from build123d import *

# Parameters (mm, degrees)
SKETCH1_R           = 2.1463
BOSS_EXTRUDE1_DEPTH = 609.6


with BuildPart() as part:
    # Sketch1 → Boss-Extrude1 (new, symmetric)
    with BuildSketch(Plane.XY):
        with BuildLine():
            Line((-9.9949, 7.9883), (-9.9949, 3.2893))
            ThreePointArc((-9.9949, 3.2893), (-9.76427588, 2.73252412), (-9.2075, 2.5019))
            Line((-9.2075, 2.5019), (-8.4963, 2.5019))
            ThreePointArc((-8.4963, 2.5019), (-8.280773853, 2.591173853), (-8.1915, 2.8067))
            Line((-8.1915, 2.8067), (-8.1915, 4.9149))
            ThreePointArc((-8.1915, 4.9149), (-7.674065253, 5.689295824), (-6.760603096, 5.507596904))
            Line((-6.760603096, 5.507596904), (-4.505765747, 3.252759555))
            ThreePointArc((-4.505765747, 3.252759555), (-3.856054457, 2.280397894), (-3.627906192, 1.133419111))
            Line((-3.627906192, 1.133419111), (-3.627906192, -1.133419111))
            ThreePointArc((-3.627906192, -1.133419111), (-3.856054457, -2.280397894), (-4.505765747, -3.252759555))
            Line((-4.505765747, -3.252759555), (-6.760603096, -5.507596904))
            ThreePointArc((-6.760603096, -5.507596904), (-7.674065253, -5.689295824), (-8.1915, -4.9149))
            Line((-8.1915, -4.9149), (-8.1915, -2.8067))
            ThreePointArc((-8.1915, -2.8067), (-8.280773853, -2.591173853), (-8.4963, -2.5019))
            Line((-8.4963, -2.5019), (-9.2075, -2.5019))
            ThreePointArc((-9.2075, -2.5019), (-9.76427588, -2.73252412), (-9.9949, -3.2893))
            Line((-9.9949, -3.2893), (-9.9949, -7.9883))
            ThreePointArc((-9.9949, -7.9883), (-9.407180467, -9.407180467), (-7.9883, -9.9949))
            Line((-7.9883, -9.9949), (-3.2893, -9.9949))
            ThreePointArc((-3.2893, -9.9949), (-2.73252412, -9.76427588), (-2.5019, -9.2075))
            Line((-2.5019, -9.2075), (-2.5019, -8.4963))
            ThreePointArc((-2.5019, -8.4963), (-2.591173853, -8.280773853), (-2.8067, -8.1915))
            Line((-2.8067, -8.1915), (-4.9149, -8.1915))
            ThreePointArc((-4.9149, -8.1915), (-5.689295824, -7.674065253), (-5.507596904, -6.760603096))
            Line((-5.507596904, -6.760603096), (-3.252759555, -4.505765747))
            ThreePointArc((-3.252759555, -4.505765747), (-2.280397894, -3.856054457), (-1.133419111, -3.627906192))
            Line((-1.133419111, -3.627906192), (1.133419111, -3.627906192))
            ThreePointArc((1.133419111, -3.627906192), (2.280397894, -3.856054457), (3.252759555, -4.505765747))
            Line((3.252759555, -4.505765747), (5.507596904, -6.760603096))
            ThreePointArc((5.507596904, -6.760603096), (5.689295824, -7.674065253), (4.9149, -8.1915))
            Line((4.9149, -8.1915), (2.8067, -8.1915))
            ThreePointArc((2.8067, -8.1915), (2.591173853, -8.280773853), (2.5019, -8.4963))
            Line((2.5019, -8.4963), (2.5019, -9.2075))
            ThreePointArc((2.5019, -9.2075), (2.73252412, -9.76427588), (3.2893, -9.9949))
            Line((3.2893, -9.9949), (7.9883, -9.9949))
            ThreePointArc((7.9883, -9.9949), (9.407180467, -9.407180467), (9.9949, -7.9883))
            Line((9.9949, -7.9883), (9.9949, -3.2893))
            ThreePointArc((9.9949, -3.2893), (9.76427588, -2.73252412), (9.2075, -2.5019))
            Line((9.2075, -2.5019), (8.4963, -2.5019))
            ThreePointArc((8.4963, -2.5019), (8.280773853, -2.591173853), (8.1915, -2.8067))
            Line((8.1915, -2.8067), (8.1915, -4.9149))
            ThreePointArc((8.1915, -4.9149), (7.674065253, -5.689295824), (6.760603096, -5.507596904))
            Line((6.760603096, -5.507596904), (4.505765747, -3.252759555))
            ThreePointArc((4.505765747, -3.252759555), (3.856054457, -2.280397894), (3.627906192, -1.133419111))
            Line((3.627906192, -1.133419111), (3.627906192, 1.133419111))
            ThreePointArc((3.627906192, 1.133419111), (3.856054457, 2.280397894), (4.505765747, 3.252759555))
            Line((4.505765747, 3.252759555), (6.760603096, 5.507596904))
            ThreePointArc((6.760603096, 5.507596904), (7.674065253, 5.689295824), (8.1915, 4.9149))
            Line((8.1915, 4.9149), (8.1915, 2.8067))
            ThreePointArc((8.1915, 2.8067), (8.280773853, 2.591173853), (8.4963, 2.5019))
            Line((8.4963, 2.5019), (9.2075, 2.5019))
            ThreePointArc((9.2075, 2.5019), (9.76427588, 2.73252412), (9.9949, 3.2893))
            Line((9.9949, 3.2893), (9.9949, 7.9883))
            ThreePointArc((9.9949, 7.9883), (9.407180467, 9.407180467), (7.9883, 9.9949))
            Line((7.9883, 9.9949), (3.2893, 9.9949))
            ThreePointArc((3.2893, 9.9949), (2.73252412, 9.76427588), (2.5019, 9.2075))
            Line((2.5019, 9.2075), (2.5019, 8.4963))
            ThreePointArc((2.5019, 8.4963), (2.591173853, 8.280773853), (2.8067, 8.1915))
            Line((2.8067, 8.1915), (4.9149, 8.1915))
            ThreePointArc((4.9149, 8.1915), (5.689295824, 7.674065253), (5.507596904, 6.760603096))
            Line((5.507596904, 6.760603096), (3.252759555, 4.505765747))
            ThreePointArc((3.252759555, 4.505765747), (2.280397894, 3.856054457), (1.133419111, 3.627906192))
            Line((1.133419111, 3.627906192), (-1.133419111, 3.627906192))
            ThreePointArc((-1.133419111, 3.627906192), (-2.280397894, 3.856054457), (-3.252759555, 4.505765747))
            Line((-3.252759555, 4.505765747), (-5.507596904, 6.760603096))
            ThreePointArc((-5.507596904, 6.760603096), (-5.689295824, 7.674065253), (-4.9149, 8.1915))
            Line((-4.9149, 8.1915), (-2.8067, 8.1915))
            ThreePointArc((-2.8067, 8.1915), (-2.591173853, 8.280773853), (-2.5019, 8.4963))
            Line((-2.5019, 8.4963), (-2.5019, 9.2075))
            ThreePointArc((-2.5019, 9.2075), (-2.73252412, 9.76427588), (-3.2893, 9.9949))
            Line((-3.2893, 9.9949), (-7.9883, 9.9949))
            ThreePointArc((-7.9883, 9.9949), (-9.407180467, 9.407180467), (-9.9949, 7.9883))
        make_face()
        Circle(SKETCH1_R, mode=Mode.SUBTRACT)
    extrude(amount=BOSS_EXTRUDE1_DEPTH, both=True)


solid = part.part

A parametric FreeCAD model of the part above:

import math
import FreeCAD as App
import Part
import Sketcher
from FreeCAD import Vector
Q = App.Units.Quantity

doc = App.newDocument("Part")
body = doc.addObject("PartDesign::Body", "Body")

# Sketch on XY plane
sketch1 = body.newObject("Sketcher::SketchObject", "Sketch")
sketch1.AttachmentSupport = (doc.getObject("XY_Plane"), [""])
sketch1.MapMode = "FlatFace"
sketch1.addGeometry(Part.LineSegment(Vector(-9.9949, 7.9883, 0), Vector(-9.9949, 3.2893, 0)), False)
sketch1.addGeometry(Part.ArcOfCircle(Part.Circle(Vector(-9.2075, 3.2893, 0), Vector(0, 0, 1), 0.7874), math.radians(180), math.radians(270)), False)
sketch1.addGeometry(Part.LineSegment(Vector(-9.2075, 2.5019, 0), Vector(-8.4963, 2.5019, 0)), False)
sketch1.addGeometry(Part.ArcOfCircle(Part.Circle(Vector(-8.4963, 2.8067, 0), Vector(0, 0, 1), 0.3048), math.radians(-90), math.radians(0)), False)
sketch1.addGeometry(Part.LineSegment(Vector(-8.1915, 2.8067, 0), Vector(-8.1915, 4.9149, 0)), False)
sketch1.addGeometry(Part.ArcOfCircle(Part.Circle(Vector(-7.3533, 4.9149, 0), Vector(0, 0, 1), 0.8382), math.radians(45), math.radians(180)), False)
sketch1.addGeometry(Part.LineSegment(Vector(-6.760603, 5.507597, 0), Vector(-4.505766, 3.25276, 0)), False)
sketch1.addGeometry(Part.ArcOfCircle(Part.Circle(Vector(-6.625106, 1.133419, 0), Vector(0, 0, 1), 2.9972), math.radians(0), math.radians(45)), False)
sketch1.addGeometry(Part.LineSegment(Vector(-3.627906, 1.133419, 0), Vector(-3.627906, -1.133419, 0)), False)
sketch1.addGeometry(Part.ArcOfCircle(Part.Circle(Vector(-6.625106, -1.133419, 0), Vector(0, 0, 1), 2.9972), math.radians(-45), math.radians(0)), False)
sketch1.addGeometry(Part.LineSegment(Vector(-4.505766, -3.25276, 0), Vector(-6.760603, -5.507597, 0)), False)
sketch1.addGeometry(Part.ArcOfCircle(Part.Circle(Vector(-7.3533, -4.9149, 0), Vector(0, 0, 1), 0.8382), math.radians(180), math.radians(315)), False)
sketch1.addGeometry(Part.LineSegment(Vector(-8.1915, -4.9149, 0), Vector(-8.1915, -2.8067, 0)), False)
sketch1.addGeometry(Part.ArcOfCircle(Part.Circle(Vector(-8.4963, -2.8067, 0), Vector(0, 0, 1), 0.3048), math.radians(0), math.radians(90)), False)
sketch1.addGeometry(Part.LineSegment(Vector(-8.4963, -2.5019, 0), Vector(-9.2075, -2.5019, 0)), False)
sketch1.addGeometry(Part.ArcOfCircle(Part.Circle(Vector(-9.2075, -3.2893, 0), Vector(0, 0, 1), 0.7874), math.radians(90), math.radians(180)), False)
sketch1.addGeometry(Part.LineSegment(Vector(-9.9949, -3.2893, 0), Vector(-9.9949, -7.9883, 0)), False)
sketch1.addGeometry(Part.ArcOfCircle(Part.Circle(Vector(-7.9883, -7.9883, 0), Vector(0, 0, 1), 2.0066), math.radians(180), math.radians(270)), False)
sketch1.addGeometry(Part.LineSegment(Vector(-7.9883, -9.9949, 0), Vector(-3.2893, -9.9949, 0)), False)
sketch1.addGeometry(Part.ArcOfCircle(Part.Circle(Vector(-3.2893, -9.2075, 0), Vector(0, 0, 1), 0.7874), math.radians(-90), math.radians(0)), False)
sketch1.addGeometry(Part.LineSegment(Vector(-2.5019, -9.2075, 0), Vector(-2.5019, -8.4963, 0)), False)
sketch1.addGeometry(Part.ArcOfCircle(Part.Circle(Vector(-2.8067, -8.4963, 0), Vector(0, 0, 1), 0.3048), math.radians(0), math.radians(90)), False)
sketch1.addGeometry(Part.LineSegment(Vector(-2.8067, -8.1915, 0), Vector(-4.9149, -8.1915, 0)), False)
sketch1.addGeometry(Part.ArcOfCircle(Part.Circle(Vector(-4.9149, -7.3533, 0), Vector(0, 0, 1), 0.8382), math.radians(135), math.radians(270)), False)
sketch1.addGeometry(Part.LineSegment(Vector(-5.507597, -6.760603, 0), Vector(-3.25276, -4.505766, 0)), False)
sketch1.addGeometry(Part.ArcOfCircle(Part.Circle(Vector(-1.133419, -6.625106, 0), Vector(0, 0, 1), 2.9972), math.radians(90), math.radians(135)), False)
sketch1.addGeometry(Part.LineSegment(Vector(-1.133419, -3.627906, 0), Vector(1.133419, -3.627906, 0)), False)
sketch1.addGeometry(Part.ArcOfCircle(Part.Circle(Vector(1.133419, -6.625106, 0), Vector(0, 0, 1), 2.9972), math.radians(45), math.radians(90)), False)
sketch1.addGeometry(Part.LineSegment(Vector(3.25276, -4.505766, 0), Vector(5.507597, -6.760603, 0)), False)
sketch1.addGeometry(Part.ArcOfCircle(Part.Circle(Vector(4.9149, -7.3533, 0), Vector(0, 0, 1), 0.8382), math.radians(-90), math.radians(45)), False)
sketch1.addGeometry(Part.LineSegment(Vector(4.9149, -8.1915, 0), Vector(2.8067, -8.1915, 0)), False)
sketch1.addGeometry(Part.ArcOfCircle(Part.Circle(Vector(2.8067, -8.4963, 0), Vector(0, 0, 1), 0.3048), math.radians(90), math.radians(180)), False)
sketch1.addGeometry(Part.LineSegment(Vector(2.5019, -8.4963, 0), Vector(2.5019, -9.2075, 0)), False)
sketch1.addGeometry(Part.ArcOfCircle(Part.Circle(Vector(3.2893, -9.2075, 0), Vector(0, 0, 1), 0.7874), math.radians(180), math.radians(270)), False)
sketch1.addGeometry(Part.LineSegment(Vector(3.2893, -9.9949, 0), Vector(7.9883, -9.9949, 0)), False)
sketch1.addGeometry(Part.ArcOfCircle(Part.Circle(Vector(7.9883, -7.9883, 0), Vector(0, 0, 1), 2.0066), math.radians(-90), math.radians(0)), False)
sketch1.addGeometry(Part.LineSegment(Vector(9.9949, -7.9883, 0), Vector(9.9949, -3.2893, 0)), False)
sketch1.addGeometry(Part.ArcOfCircle(Part.Circle(Vector(9.2075, -3.2893, 0), Vector(0, 0, 1), 0.7874), math.radians(0), math.radians(90)), False)
sketch1.addGeometry(Part.LineSegment(Vector(9.2075, -2.5019, 0), Vector(8.4963, -2.5019, 0)), False)
sketch1.addGeometry(Part.ArcOfCircle(Part.Circle(Vector(8.4963, -2.8067, 0), Vector(0, 0, 1), 0.3048), math.radians(90), math.radians(180)), False)
sketch1.addGeometry(Part.LineSegment(Vector(8.1915, -2.8067, 0), Vector(8.1915, -4.9149, 0)), False)
sketch1.addGeometry(Part.ArcOfCircle(Part.Circle(Vector(7.3533, -4.9149, 0), Vector(0, 0, 1), 0.8382), math.radians(-135), math.radians(0)), False)
sketch1.addGeometry(Part.LineSegment(Vector(6.760603, -5.507597, 0), Vector(4.505766, -3.25276, 0)), False)
sketch1.addGeometry(Part.ArcOfCircle(Part.Circle(Vector(6.625106, -1.133419, 0), Vector(0, 0, 1), 2.9972), math.radians(180), math.radians(225)), False)
sketch1.addGeometry(Part.LineSegment(Vector(3.627906, -1.133419, 0), Vector(3.627906, 1.133419, 0)), False)
sketch1.addGeometry(Part.ArcOfCircle(Part.Circle(Vector(6.625106, 1.133419, 0), Vector(0, 0, 1), 2.9972), math.radians(135), math.radians(180)), False)
sketch1.addGeometry(Part.LineSegment(Vector(4.505766, 3.25276, 0), Vector(6.760603, 5.507597, 0)), False)
sketch1.addGeometry(Part.ArcOfCircle(Part.Circle(Vector(7.3533, 4.9149, 0), Vector(0, 0, 1), 0.8382), math.radians(0), math.radians(135)), False)
sketch1.addGeometry(Part.LineSegment(Vector(8.1915, 4.9149, 0), Vector(8.1915, 2.8067, 0)), False)
sketch1.addGeometry(Part.ArcOfCircle(Part.Circle(Vector(8.4963, 2.8067, 0), Vector(0, 0, 1), 0.3048), math.radians(180), math.radians(270)), False)
sketch1.addGeometry(Part.LineSegment(Vector(8.4963, 2.5019, 0), Vector(9.2075, 2.5019, 0)), False)
sketch1.addGeometry(Part.ArcOfCircle(Part.Circle(Vector(9.2075, 3.2893, 0), Vector(0, 0, 1), 0.7874), math.radians(-90), math.radians(0)), False)
sketch1.addGeometry(Part.LineSegment(Vector(9.9949, 3.2893, 0), Vector(9.9949, 7.9883, 0)), False)
sketch1.addGeometry(Part.ArcOfCircle(Part.Circle(Vector(7.9883, 7.9883, 0), Vector(0, 0, 1), 2.0066), math.radians(0), math.radians(90)), False)
sketch1.addGeometry(Part.LineSegment(Vector(7.9883, 9.9949, 0), Vector(3.2893, 9.9949, 0)), False)
sketch1.addGeometry(Part.ArcOfCircle(Part.Circle(Vector(3.2893, 9.2075, 0), Vector(0, 0, 1), 0.7874), math.radians(90), math.radians(180)), False)
sketch1.addGeometry(Part.LineSegment(Vector(2.5019, 9.2075, 0), Vector(2.5019, 8.4963, 0)), False)
sketch1.addGeometry(Part.ArcOfCircle(Part.Circle(Vector(2.8067, 8.4963, 0), Vector(0, 0, 1), 0.3048), math.radians(180), math.radians(270)), False)
sketch1.addGeometry(Part.LineSegment(Vector(2.8067, 8.1915, 0), Vector(4.9149, 8.1915, 0)), False)
sketch1.addGeometry(Part.ArcOfCircle(Part.Circle(Vector(4.9149, 7.3533, 0), Vector(0, 0, 1), 0.8382), math.radians(-45), math.radians(90)), False)
sketch1.addGeometry(Part.LineSegment(Vector(5.507597, 6.760603, 0), Vector(3.25276, 4.505766, 0)), False)
sketch1.addGeometry(Part.ArcOfCircle(Part.Circle(Vector(1.133419, 6.625106, 0), Vector(0, 0, 1), 2.9972), math.radians(-90), math.radians(-45)), False)
sketch1.addGeometry(Part.LineSegment(Vector(1.133419, 3.627906, 0), Vector(-1.133419, 3.627906, 0)), False)
sketch1.addGeometry(Part.ArcOfCircle(Part.Circle(Vector(-1.133419, 6.625106, 0), Vector(0, 0, 1), 2.9972), math.radians(-135), math.radians(-90)), False)
sketch1.addGeometry(Part.LineSegment(Vector(-3.25276, 4.505766, 0), Vector(-5.507597, 6.760603, 0)), False)
sketch1.addGeometry(Part.ArcOfCircle(Part.Circle(Vector(-4.9149, 7.3533, 0), Vector(0, 0, 1), 0.8382), math.radians(90), math.radians(225)), False)
sketch1.addGeometry(Part.LineSegment(Vector(-4.9149, 8.1915, 0), Vector(-2.8067, 8.1915, 0)), False)
sketch1.addGeometry(Part.ArcOfCircle(Part.Circle(Vector(-2.8067, 8.4963, 0), Vector(0, 0, 1), 0.3048), math.radians(-90), math.radians(0)), False)
sketch1.addGeometry(Part.LineSegment(Vector(-2.5019, 8.4963, 0), Vector(-2.5019, 9.2075, 0)), False)
sketch1.addGeometry(Part.ArcOfCircle(Part.Circle(Vector(-3.2893, 9.2075, 0), Vector(0, 0, 1), 0.7874), math.radians(0), math.radians(90)), False)
sketch1.addGeometry(Part.LineSegment(Vector(-3.2893, 9.9949, 0), Vector(-7.9883, 9.9949, 0)), False)
sketch1.addGeometry(Part.ArcOfCircle(Part.Circle(Vector(-7.9883, 7.9883, 0), Vector(0, 0, 1), 2.0066), math.radians(90), math.radians(180)), False)
sketch1.addGeometry(Part.Circle(Vector(0, 0, 0), Vector(0, 0, 1), 2.1463), False)
sketch1.addConstraint(Sketcher.Constraint("Tangent", 0, 2, 1, 1))
sketch1.addConstraint(Sketcher.Constraint("Tangent", 1, 2, 2, 1))
sketch1.addConstraint(Sketcher.Constraint("Tangent", 2, 2, 3, 1))
sketch1.addConstraint(Sketcher.Constraint("Tangent", 3, 2, 4, 1))
sketch1.addConstraint(Sketcher.Constraint("Tangent", 4, 2, 5, 2))
sketch1.addConstraint(Sketcher.Constraint("Tangent", 5, 1, 6, 1))
sketch1.addConstraint(Sketcher.Constraint("Tangent", 6, 2, 7, 2))
sketch1.addConstraint(Sketcher.Constraint("Tangent", 7, 1, 8, 1))
sketch1.addConstraint(Sketcher.Constraint("Tangent", 8, 2, 9, 2))
sketch1.addConstraint(Sketcher.Constraint("Tangent", 9, 1, 10, 1))
sketch1.addConstraint(Sketcher.Constraint("Tangent", 10, 2, 11, 2))
sketch1.addConstraint(Sketcher.Constraint("Tangent", 11, 1, 12, 1))
sketch1.addConstraint(Sketcher.Constraint("Tangent", 12, 2, 13, 1))
sketch1.addConstraint(Sketcher.Constraint("Tangent", 13, 2, 14, 1))
sketch1.addConstraint(Sketcher.Constraint("Tangent", 14, 2, 15, 1))
sketch1.addConstraint(Sketcher.Constraint("Tangent", 15, 2, 16, 1))
sketch1.addConstraint(Sketcher.Constraint("Tangent", 16, 2, 17, 1))
sketch1.addConstraint(Sketcher.Constraint("Tangent", 17, 2, 18, 1))
sketch1.addConstraint(Sketcher.Constraint("Tangent", 18, 2, 19, 1))
sketch1.addConstraint(Sketcher.Constraint("Tangent", 19, 2, 20, 1))
sketch1.addConstraint(Sketcher.Constraint("Tangent", 20, 2, 21, 1))
sketch1.addConstraint(Sketcher.Constraint("Tangent", 21, 2, 22, 1))
sketch1.addConstraint(Sketcher.Constraint("Tangent", 22, 2, 23, 2))
sketch1.addConstraint(Sketcher.Constraint("Tangent", 23, 1, 24, 1))
sketch1.addConstraint(Sketcher.Constraint("Tangent", 24, 2, 25, 2))
sketch1.addConstraint(Sketcher.Constraint("Tangent", 25, 1, 26, 1))
sketch1.addConstraint(Sketcher.Constraint("Tangent", 26, 2, 27, 2))
sketch1.addConstraint(Sketcher.Constraint("Tangent", 27, 1, 28, 1))
sketch1.addConstraint(Sketcher.Constraint("Tangent", 28, 2, 29, 2))
sketch1.addConstraint(Sketcher.Constraint("Tangent", 29, 1, 30, 1))
sketch1.addConstraint(Sketcher.Constraint("Tangent", 30, 2, 31, 1))
sketch1.addConstraint(Sketcher.Constraint("Tangent", 31, 2, 32, 1))
sketch1.addConstraint(Sketcher.Constraint("Tangent", 32, 2, 33, 1))
sketch1.addConstraint(Sketcher.Constraint("Tangent", 33, 2, 34, 1))
sketch1.addConstraint(Sketcher.Constraint("Tangent", 34, 2, 35, 1))
sketch1.addConstraint(Sketcher.Constraint("Tangent", 35, 2, 36, 1))
sketch1.addConstraint(Sketcher.Constraint("Tangent", 36, 2, 37, 1))
sketch1.addConstraint(Sketcher.Constraint("Tangent", 37, 2, 38, 1))
sketch1.addConstraint(Sketcher.Constraint("Tangent", 38, 2, 39, 1))
sketch1.addConstraint(Sketcher.Constraint("Tangent", 39, 2, 40, 1))
sketch1.addConstraint(Sketcher.Constraint("Tangent", 40, 2, 41, 2))
sketch1.addConstraint(Sketcher.Constraint("Tangent", 41, 1, 42, 1))
sketch1.addConstraint(Sketcher.Constraint("Tangent", 42, 2, 43, 2))
sketch1.addConstraint(Sketcher.Constraint("Tangent", 43, 1, 44, 1))
sketch1.addConstraint(Sketcher.Constraint("Tangent", 44, 2, 45, 2))
sketch1.addConstraint(Sketcher.Constraint("Tangent", 45, 1, 46, 1))
sketch1.addConstraint(Sketcher.Constraint("Tangent", 46, 2, 47, 2))
sketch1.addConstraint(Sketcher.Constraint("Tangent", 47, 1, 48, 1))
sketch1.addConstraint(Sketcher.Constraint("Tangent", 48, 2, 49, 1))
sketch1.addConstraint(Sketcher.Constraint("Tangent", 49, 2, 50, 1))
sketch1.addConstraint(Sketcher.Constraint("Tangent", 50, 2, 51, 1))
sketch1.addConstraint(Sketcher.Constraint("Tangent", 51, 2, 52, 1))
sketch1.addConstraint(Sketcher.Constraint("Tangent", 52, 2, 53, 1))
sketch1.addConstraint(Sketcher.Constraint("Tangent", 53, 2, 54, 1))
sketch1.addConstraint(Sketcher.Constraint("Tangent", 54, 2, 55, 1))
sketch1.addConstraint(Sketcher.Constraint("Tangent", 55, 2, 56, 1))
sketch1.addConstraint(Sketcher.Constraint("Tangent", 56, 2, 57, 1))
sketch1.addConstraint(Sketcher.Constraint("Tangent", 57, 2, 58, 1))
sketch1.addConstraint(Sketcher.Constraint("Tangent", 58, 2, 59, 2))
sketch1.addConstraint(Sketcher.Constraint("Tangent", 59, 1, 60, 1))
sketch1.addConstraint(Sketcher.Constraint("Tangent", 60, 2, 61, 2))
sketch1.addConstraint(Sketcher.Constraint("Tangent", 61, 1, 62, 1))
sketch1.addConstraint(Sketcher.Constraint("Tangent", 62, 2, 63, 2))
sketch1.addConstraint(Sketcher.Constraint("Tangent", 63, 1, 64, 1))
sketch1.addConstraint(Sketcher.Constraint("Tangent", 64, 2, 65, 2))
sketch1.addConstraint(Sketcher.Constraint("Tangent", 65, 1, 66, 1))
sketch1.addConstraint(Sketcher.Constraint("Tangent", 66, 2, 67, 1))
sketch1.addConstraint(Sketcher.Constraint("Tangent", 67, 2, 68, 1))
sketch1.addConstraint(Sketcher.Constraint("Tangent", 68, 2, 69, 1))
sketch1.addConstraint(Sketcher.Constraint("Tangent", 69, 2, 70, 1))
sketch1.addConstraint(Sketcher.Constraint("Tangent", 70, 2, 71, 1))
sketch1.addConstraint(Sketcher.Constraint("Tangent", 71, 2, 0, 1))
sketch1.addConstraint(Sketcher.Constraint("Vertical", 0))
sketch1.addConstraint(Sketcher.Constraint("Horizontal", 2))
sketch1.addConstraint(Sketcher.Constraint("Vertical", 4))
sketch1.addConstraint(Sketcher.Constraint("Vertical", 8))
sketch1.addConstraint(Sketcher.Constraint("Vertical", 12))
sketch1.addConstraint(Sketcher.Constraint("Horizontal", 14))
sketch1.addConstraint(Sketcher.Constraint("Vertical", 16))
sketch1.addConstraint(Sketcher.Constraint("Horizontal", 18))
sketch1.addConstraint(Sketcher.Constraint("Vertical", 20))
sketch1.addConstraint(Sketcher.Constraint("Horizontal", 22))
sketch1.addConstraint(Sketcher.Constraint("Horizontal", 26))
sketch1.addConstraint(Sketcher.Constraint("Horizontal", 30))
sketch1.addConstraint(Sketcher.Constraint("Vertical", 32))
sketch1.addConstraint(Sketcher.Constraint("Horizontal", 34))
sketch1.addConstraint(Sketcher.Constraint("Vertical", 36))
sketch1.addConstraint(Sketcher.Constraint("Horizontal", 38))
sketch1.addConstraint(Sketcher.Constraint("Vertical", 40))
sketch1.addConstraint(Sketcher.Constraint("Vertical", 44))
sketch1.addConstraint(Sketcher.Constraint("Vertical", 48))
sketch1.addConstraint(Sketcher.Constraint("Horizontal", 50))
sketch1.addConstraint(Sketcher.Constraint("Vertical", 52))
sketch1.addConstraint(Sketcher.Constraint("Horizontal", 54))
sketch1.addConstraint(Sketcher.Constraint("Vertical", 56))
sketch1.addConstraint(Sketcher.Constraint("Horizontal", 58))
sketch1.addConstraint(Sketcher.Constraint("Horizontal", 62))
sketch1.addConstraint(Sketcher.Constraint("Horizontal", 66))
sketch1.addConstraint(Sketcher.Constraint("Vertical", 68))
sketch1.addConstraint(Sketcher.Constraint("Horizontal", 70))
sketch1.addConstraint(Sketcher.Constraint("Coincident", 72, 3, -1, 1))
sketch1.addConstraint(Sketcher.Constraint("Equal", 7, 9))
sketch1.addConstraint(Sketcher.Constraint("Equal", 5, 11))
sketch1.addConstraint(Sketcher.Constraint("Equal", 3, 13))
sketch1.addConstraint(Sketcher.Constraint("Equal", 1, 15))
sketch1.addConstraint(Sketcher.Constraint("Equal", 15, 19))
sketch1.addConstraint(Sketcher.Constraint("Equal", 13, 21))
sketch1.addConstraint(Sketcher.Constraint("Equal", 11, 23))
sketch1.addConstraint(Sketcher.Constraint("Equal", 9, 25))
sketch1.addConstraint(Sketcher.Constraint("Equal", 25, 27))
sketch1.addConstraint(Sketcher.Constraint("Equal", 23, 29))
sketch1.addConstraint(Sketcher.Constraint("Equal", 21, 31))
sketch1.addConstraint(Sketcher.Constraint("Equal", 19, 33))
sketch1.addConstraint(Sketcher.Constraint("Equal", 17, 35))
sketch1.addConstraint(Sketcher.Constraint("Equal", 33, 37))
sketch1.addConstraint(Sketcher.Constraint("Equal", 31, 39))
sketch1.addConstraint(Sketcher.Constraint("Equal", 29, 41))
sketch1.addConstraint(Sketcher.Constraint("Equal", 27, 43))
sketch1.addConstraint(Sketcher.Constraint("Equal", 43, 45))
sketch1.addConstraint(Sketcher.Constraint("Equal", 41, 47))
sketch1.addConstraint(Sketcher.Constraint("Equal", 39, 49))
sketch1.addConstraint(Sketcher.Constraint("Equal", 37, 51))
sketch1.addConstraint(Sketcher.Constraint("Equal", 35, 53))
sketch1.addConstraint(Sketcher.Constraint("Equal", 51, 55))
sketch1.addConstraint(Sketcher.Constraint("Equal", 49, 57))
sketch1.addConstraint(Sketcher.Constraint("Equal", 47, 59))
sketch1.addConstraint(Sketcher.Constraint("Equal", 45, 61))
sketch1.addConstraint(Sketcher.Constraint("Equal", 61, 63))
sketch1.addConstraint(Sketcher.Constraint("Equal", 59, 65))
sketch1.addConstraint(Sketcher.Constraint("Equal", 57, 67))
sketch1.addConstraint(Sketcher.Constraint("Equal", 55, 69))
sketch1.addConstraint(Sketcher.Constraint("Equal", 53, 71))
sketch1.addConstraint(Sketcher.Constraint("Symmetric", 1, 3, 37, 3, -1, 1))
sketch1.addConstraint(Sketcher.Constraint("Symmetric", 5, 3, 41, 3, -1, 1))
sketch1.addConstraint(Sketcher.Constraint("Symmetric", 7, 3, 43, 3, -1, 1))
sketch1.addConstraint(Sketcher.Constraint("Symmetric", 11, 3, 47, 3, -1, 1))
sketch1.addConstraint(Sketcher.Constraint("Symmetric", 15, 3, 51, 3, -1, 1))
sketch1.addConstraint(Sketcher.Constraint("Symmetric", 19, 3, 55, 3, -1, 1))
sketch1.addConstraint(Sketcher.Constraint("Symmetric", 23, 3, 59, 3, -1, 1))
sketch1.addConstraint(Sketcher.Constraint("Symmetric", 25, 3, 61, 3, -1, 1))
sketch1.addConstraint(Sketcher.Constraint("Symmetric", 29, 3, 65, 3, -1, 1))
sketch1.addConstraint(Sketcher.Constraint("Symmetric", 33, 3, 69, 3, -1, 1))
sketch1.addConstraint(Sketcher.Constraint("Symmetric", 23, 3, 29, 3, -2))
sketch1.addConstraint(Sketcher.Constraint("Symmetric", 19, 3, 33, 3, -2))
sketch1.addConstraint(Sketcher.Constraint("Symmetric", 15, 3, 37, 3, -2))
sketch1.addConstraint(Sketcher.Constraint("Symmetric", 11, 3, 41, 3, -2))
sketch1.addConstraint(Sketcher.Constraint("Perpendicular", 6, 10))
sketch1.addConstraint(Sketcher.Constraint("Parallel", 10, 24))
sketch1.addConstraint(Sketcher.Constraint("Perpendicular", 24, 28))
sketch1.addConstraint(Sketcher.Constraint("Perpendicular", 42, 46))
sketch1.addConstraint(Sketcher.Constraint("Perpendicular", 60, 64))
sketch1.addConstraint(Sketcher.Constraint("Horizontal", 9, 3, 43, 3))
sketch1.addConstraint(Sketcher.Constraint("Equal", 70, 0))
sketch1.addConstraint(Sketcher.Constraint("Equal", 66, 4))
sketch1.addConstraint(Sketcher.Constraint("Equal", 62, 8))
sketch1.addConstraint(Sketcher.Constraint("Equal", 50, 20))
sketch1.addConstraint(Sketcher.Constraint("Equal", 10, 24))
sketch1.addConstraint(Sketcher.Constraint("Diameter", 72, Q("0.169 in")))
sketch1.addConstraint(Sketcher.Constraint("Radius", 1, Q("0.031 in")))
sketch1.addConstraint(Sketcher.Constraint("Radius", 3, Q("0.012 in")))
sketch1.addConstraint(Sketcher.Constraint("Radius", 5, Q("0.033 in")))
sketch1.addConstraint(Sketcher.Constraint("Radius", 7, Q("0.118 in")))
sketch1.addConstraint(Sketcher.Constraint("Radius", 17, Q("0.079 in")))
sketch1.addConstraint(Sketcher.Constraint("DistanceX", 2, 1, 2, 2, Q("0.028 in")))
sketch1.addConstraint(Sketcher.Constraint("DistanceX", 18, 1, 18, 2, Q("0.185 in")))
sketch1.addConstraint(Sketcher.Constraint("DistanceX", 22, 2, 22, 1, Q("0.083 in")))
sketch1.addConstraint(Sketcher.Constraint("DistanceX", 1, 3, -1, 1, Q("0.3625 in")))
sketch1.addConstraint(Sketcher.Constraint("DistanceX", 26, 1, 26, 2, 2.266838))
pad1 = body.newObject("PartDesign::Pad", "Pad")
pad1.Profile = sketch1
pad1.Length = Q("48 in")
pad1.Midplane = True

doc.recompute()
